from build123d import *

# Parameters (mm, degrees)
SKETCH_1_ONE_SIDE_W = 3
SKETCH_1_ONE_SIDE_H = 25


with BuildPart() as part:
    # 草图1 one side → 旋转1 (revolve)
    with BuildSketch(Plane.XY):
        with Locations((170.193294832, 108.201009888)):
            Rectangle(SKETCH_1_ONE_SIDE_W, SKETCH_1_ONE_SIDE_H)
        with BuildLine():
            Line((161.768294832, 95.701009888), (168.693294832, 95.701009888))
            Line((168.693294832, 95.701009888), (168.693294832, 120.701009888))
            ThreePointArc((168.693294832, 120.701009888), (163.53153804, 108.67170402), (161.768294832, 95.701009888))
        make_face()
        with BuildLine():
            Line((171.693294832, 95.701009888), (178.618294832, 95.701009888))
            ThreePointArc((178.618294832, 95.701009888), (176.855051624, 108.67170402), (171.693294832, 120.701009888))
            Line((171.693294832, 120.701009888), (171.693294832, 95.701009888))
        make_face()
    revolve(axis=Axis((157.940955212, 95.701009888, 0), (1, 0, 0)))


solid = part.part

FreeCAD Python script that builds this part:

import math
import FreeCAD as App
import Part
import Sketcher

doc = App.newDocument("Part")
params = doc.addObject("Spreadsheet::Sheet", "Params")
for row, (alias, value) in enumerate([
    ("sketch1_width", "3 mm"),
    ("sketch1_width2", "16.85 mm"),
    ("revolution_angle", "360 deg"),
], start=1):
    params.set(f"A{row}", alias)
    params.set(f"B{row}", "=" + value)
    params.setAlias(f"B{row}", alias)

body = doc.addObject("PartDesign::Body", "Body")

sketch1 = doc.addObject("Sketcher::SketchObject", "Sketch")
body.addObject(sketch1)
sketch1.AttachmentSupport = (doc.XY_Plane, [""])
sketch1.MapMode = "FlatFace"
sketch1.addGeometry([
    Part.LineSegment(App.Vector(171.7, 120.7, 0), App.Vector(168.7, 120.7, 0)),
    Part.ArcOfCircle(Part.Circle(App.Vector(210.4, 95.7, 0), App.Vector(0, 0, 1), 48.6), math.radians(149), math.radians(180)),
    Part.LineSegment(App.Vector(161.8, 95.7, 0), App.Vector(178.6, 95.7, 0)),
    Part.ArcOfCircle(Part.Circle(App.Vector(130, 95.7, 0), App.Vector(0, 0, 1), 48.6), math.radians(0), math.radians(31)),
], False)
sketch1.addGeometry(Part.LineSegment(App.Vector(130, 95.7, 0), App.Vector(210.4, 95.7, 0)), True)
sketch1.addConstraint([
    Sketcher.Constraint("Coincident", 0, 2, 1, 1),
    Sketcher.Constraint("Coincident", 1, 2, 2, 1),
    Sketcher.Constraint("Coincident", 2, 2, 3, 1),
    Sketcher.Constraint("Coincident", 3, 2, 0, 1),
    Sketcher.Constraint("Horizontal", 0),
    Sketcher.Constraint("Horizontal", 2),
    Sketcher.Constraint("Horizontal", 4),
    Sketcher.Constraint("Coincident", 4, 1, 3, 3),
    Sketcher.Constraint("Coincident", 4, 2, 1, 3),
    Sketcher.Constraint("Equal", 1, 3),
    Sketcher.Constraint("Horizontal", 3, 3, 1, 2),
    Sketcher.Constraint("DistanceX", 0, 2, 0, 1, 3.0),
    Sketcher.Constraint("DistanceY", 3, 3, 0, 2, 25.0),
    Sketcher.Constraint("DistanceX", 2, 1, 2, 2, 16.85),
    Sketcher.Constraint("DistanceX", -1, 1, 1, 3, 210.357149),
    Sketcher.Constraint("DistanceY", -1, 1, 1, 3, 95.70101),
])
sketch1.setExpression("Constraints[11]", "Params.sketch1_width")
sketch1.setExpression("Constraints[13]", "Params.sketch1_width2")
revolution = doc.addObject("PartDesign::Revolution", "Revolution")
body.addObject(revolution)
revolution.Profile = sketch1
revolution.ReferenceAxis = (sketch1, ["Axis0"])
revolution.setExpression("Angle", "Params.revolution_angle")

doc.recompute()
